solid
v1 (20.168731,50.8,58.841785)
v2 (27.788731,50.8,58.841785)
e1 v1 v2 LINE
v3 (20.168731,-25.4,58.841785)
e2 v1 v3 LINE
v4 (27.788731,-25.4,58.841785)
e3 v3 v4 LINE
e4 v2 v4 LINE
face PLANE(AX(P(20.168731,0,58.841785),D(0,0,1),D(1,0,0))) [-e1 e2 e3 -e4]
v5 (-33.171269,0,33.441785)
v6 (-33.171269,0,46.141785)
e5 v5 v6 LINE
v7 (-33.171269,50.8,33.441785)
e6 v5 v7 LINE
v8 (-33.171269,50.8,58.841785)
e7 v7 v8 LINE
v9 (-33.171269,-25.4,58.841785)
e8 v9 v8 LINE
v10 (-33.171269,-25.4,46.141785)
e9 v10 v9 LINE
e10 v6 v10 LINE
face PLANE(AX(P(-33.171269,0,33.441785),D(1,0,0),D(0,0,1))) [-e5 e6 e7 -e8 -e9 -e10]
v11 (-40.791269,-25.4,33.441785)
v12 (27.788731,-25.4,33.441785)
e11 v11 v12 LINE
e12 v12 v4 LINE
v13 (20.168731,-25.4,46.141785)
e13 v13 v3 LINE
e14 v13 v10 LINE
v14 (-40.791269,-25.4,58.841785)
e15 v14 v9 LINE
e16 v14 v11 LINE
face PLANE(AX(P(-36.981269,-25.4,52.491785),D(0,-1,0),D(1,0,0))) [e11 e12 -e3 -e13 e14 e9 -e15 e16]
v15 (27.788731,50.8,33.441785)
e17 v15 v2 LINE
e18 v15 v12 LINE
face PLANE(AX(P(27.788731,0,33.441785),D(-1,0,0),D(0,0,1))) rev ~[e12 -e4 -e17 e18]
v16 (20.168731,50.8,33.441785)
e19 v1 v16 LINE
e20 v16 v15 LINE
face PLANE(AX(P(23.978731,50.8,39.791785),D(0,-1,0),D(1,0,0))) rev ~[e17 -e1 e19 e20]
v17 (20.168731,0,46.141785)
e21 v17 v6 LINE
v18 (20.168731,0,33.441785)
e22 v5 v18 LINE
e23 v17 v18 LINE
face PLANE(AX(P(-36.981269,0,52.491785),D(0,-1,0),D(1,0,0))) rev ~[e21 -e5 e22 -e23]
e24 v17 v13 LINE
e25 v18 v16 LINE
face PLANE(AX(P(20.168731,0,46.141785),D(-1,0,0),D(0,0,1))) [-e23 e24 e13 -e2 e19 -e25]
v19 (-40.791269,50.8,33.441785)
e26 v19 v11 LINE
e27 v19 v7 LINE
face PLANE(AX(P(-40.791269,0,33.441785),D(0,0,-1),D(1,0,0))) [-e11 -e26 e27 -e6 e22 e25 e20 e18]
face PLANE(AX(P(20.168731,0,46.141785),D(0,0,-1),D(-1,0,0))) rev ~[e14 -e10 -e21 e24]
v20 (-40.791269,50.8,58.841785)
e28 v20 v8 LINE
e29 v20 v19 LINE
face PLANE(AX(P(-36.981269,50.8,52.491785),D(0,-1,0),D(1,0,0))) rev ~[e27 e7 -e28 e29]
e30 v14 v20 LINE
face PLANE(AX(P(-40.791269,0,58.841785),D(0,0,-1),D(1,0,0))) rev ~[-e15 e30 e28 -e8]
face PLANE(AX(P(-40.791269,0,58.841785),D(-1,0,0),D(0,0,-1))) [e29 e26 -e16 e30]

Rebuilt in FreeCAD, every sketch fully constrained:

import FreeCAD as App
import Part
import Sketcher
from FreeCAD import Vector
Q = App.Units.Quantity


def add_polygon(sketch, points):
    """Adds a closed chain of lines whose ends are joined by coincident constraints."""
    first, n = sketch.GeometryCount, len(points)
    for a, b in zip(points, points[1:] + points[:1]):
        sketch.addGeometry(Part.LineSegment(App.Vector(*a, 0), App.Vector(*b, 0)), False)
    for i in range(n):
        sketch.addConstraint(Sketcher.Constraint("Coincident", first + i, 2, first + (i + 1) % n, 1))

doc = App.newDocument("Part")
body = doc.addObject("PartDesign::Body", "Body")

# Sketch on XZ plane
sketch1 = body.newObject("Sketcher::SketchObject", "Sketch")
sketch1.AttachmentSupport = (doc.getObject("XZ_Plane"), [""])
sketch1.MapMode = "FlatFace"
add_polygon(sketch1, [(-41, 59), (-41, 33), (28, 33), (28, 59), (20, 59), (20, 46), (-33, 46), (-33, 59)])  # lines 0-7
sketch1.addConstraint(Sketcher.Constraint("Vertical", 0))
sketch1.addConstraint(Sketcher.Constraint("Horizontal", 1))
sketch1.addConstraint(Sketcher.Constraint("Vertical", 2))
sketch1.addConstraint(Sketcher.Constraint("Horizontal", 3))
sketch1.addConstraint(Sketcher.Constraint("Vertical", 4))
sketch1.addConstraint(Sketcher.Constraint("Horizontal", 5))
sketch1.addConstraint(Sketcher.Constraint("Vertical", 6))
sketch1.addConstraint(Sketcher.Constraint("Horizontal", 7))
sketch1.addConstraint(Sketcher.Constraint("Horizontal", 3, 2, 6, 2))
sketch1.addConstraint(Sketcher.Constraint("Equal", 3, 7))
sketch1.addConstraint(Sketcher.Constraint("DistanceY", 0, 2, 0, 1, Q("1 in")))
sketch1.addConstraint(Sketcher.Constraint("DistanceX", 1, 1, 1, 2, Q("2.7 in")))
sketch1.addConstraint(Sketcher.Constraint("DistanceX", 3, 2, 3, 1, Q("0.3 in")))
sketch1.addConstraint(Sketcher.Constraint("DistanceY", 4, 2, 4, 1, Q("0.5 in")))
sketch1.addConstraint(Sketcher.Constraint("DistanceX", 0, 2, -1, 1, Q("40.791269 mm")))
sketch1.addConstraint(Sketcher.Constraint("DistanceY", -1, 1, 0, 2, Q("33.441785 mm")))
pad1 = body.newObject("PartDesign::Pad", "Pad")
pad1.Profile = sketch1
pad1.Length = Q("1 in")

# Sketch on XZ plane
sketch2 = body.newObject("Sketcher::SketchObject", "Sketch001")
sketch2.AttachmentSupport = (doc.getObject("XZ_Plane"), [""])
sketch2.MapMode = "FlatFace"
add_polygon(sketch2, [(-41, 59), (-41, 33), (-33, 33), (-33, 59)])  # lines 0-3
add_polygon(sketch2, [(20, 33), (28, 33), (28, 59), (20, 59)])  # lines 4-7
sketch2.addConstraint(Sketcher.Constraint("Vertical", 0))
sketch2.addConstraint(Sketcher.Constraint("Horizontal", 1))
sketch2.addConstraint(Sketcher.Constraint("Vertical", 2))
sketch2.addConstraint(Sketcher.Constraint("Horizontal", 3))
sketch2.addConstraint(Sketcher.Constraint("Horizontal", 4))
sketch2.addConstraint(Sketcher.Constraint("Vertical", 5))
sketch2.addConstraint(Sketcher.Constraint("Horizontal", 6))
sketch2.addConstraint(Sketcher.Constraint("Vertical", 7))
sketch2.addConstraint(Sketcher.Constraint("Horizontal", 1, 2, 4, 2))
sketch2.addConstraint(Sketcher.Constraint("Horizontal", 3, 2, 5, 2))
sketch2.addConstraint(Sketcher.Constraint("Equal", 3, 4))
sketch2.addConstraint(Sketcher.Constraint("DistanceY", 0, 2, 0, 1, Q("1 in")))
sketch2.addConstraint(Sketcher.Constraint("DistanceX", 1, 1, 1, 2, Q("0.3 in")))
sketch2.addConstraint(Sketcher.Constraint("DistanceX", 1, 2, 4, 2, Q("2.4 in")))
sketch2.addConstraint(Sketcher.Constraint("DistanceX", 0, 2, -1, 1, Q("40.791269 mm")))
sketch2.addConstraint(Sketcher.Constraint("DistanceY", -1, 1, 0, 2, Q("33.441785 mm")))
pad2 = body.newObject("PartDesign::Pad", "Pad001")
pad2.Profile = sketch2
pad2.Length = Q("2 in")
pad2.Reversed = True

doc.recompute()
